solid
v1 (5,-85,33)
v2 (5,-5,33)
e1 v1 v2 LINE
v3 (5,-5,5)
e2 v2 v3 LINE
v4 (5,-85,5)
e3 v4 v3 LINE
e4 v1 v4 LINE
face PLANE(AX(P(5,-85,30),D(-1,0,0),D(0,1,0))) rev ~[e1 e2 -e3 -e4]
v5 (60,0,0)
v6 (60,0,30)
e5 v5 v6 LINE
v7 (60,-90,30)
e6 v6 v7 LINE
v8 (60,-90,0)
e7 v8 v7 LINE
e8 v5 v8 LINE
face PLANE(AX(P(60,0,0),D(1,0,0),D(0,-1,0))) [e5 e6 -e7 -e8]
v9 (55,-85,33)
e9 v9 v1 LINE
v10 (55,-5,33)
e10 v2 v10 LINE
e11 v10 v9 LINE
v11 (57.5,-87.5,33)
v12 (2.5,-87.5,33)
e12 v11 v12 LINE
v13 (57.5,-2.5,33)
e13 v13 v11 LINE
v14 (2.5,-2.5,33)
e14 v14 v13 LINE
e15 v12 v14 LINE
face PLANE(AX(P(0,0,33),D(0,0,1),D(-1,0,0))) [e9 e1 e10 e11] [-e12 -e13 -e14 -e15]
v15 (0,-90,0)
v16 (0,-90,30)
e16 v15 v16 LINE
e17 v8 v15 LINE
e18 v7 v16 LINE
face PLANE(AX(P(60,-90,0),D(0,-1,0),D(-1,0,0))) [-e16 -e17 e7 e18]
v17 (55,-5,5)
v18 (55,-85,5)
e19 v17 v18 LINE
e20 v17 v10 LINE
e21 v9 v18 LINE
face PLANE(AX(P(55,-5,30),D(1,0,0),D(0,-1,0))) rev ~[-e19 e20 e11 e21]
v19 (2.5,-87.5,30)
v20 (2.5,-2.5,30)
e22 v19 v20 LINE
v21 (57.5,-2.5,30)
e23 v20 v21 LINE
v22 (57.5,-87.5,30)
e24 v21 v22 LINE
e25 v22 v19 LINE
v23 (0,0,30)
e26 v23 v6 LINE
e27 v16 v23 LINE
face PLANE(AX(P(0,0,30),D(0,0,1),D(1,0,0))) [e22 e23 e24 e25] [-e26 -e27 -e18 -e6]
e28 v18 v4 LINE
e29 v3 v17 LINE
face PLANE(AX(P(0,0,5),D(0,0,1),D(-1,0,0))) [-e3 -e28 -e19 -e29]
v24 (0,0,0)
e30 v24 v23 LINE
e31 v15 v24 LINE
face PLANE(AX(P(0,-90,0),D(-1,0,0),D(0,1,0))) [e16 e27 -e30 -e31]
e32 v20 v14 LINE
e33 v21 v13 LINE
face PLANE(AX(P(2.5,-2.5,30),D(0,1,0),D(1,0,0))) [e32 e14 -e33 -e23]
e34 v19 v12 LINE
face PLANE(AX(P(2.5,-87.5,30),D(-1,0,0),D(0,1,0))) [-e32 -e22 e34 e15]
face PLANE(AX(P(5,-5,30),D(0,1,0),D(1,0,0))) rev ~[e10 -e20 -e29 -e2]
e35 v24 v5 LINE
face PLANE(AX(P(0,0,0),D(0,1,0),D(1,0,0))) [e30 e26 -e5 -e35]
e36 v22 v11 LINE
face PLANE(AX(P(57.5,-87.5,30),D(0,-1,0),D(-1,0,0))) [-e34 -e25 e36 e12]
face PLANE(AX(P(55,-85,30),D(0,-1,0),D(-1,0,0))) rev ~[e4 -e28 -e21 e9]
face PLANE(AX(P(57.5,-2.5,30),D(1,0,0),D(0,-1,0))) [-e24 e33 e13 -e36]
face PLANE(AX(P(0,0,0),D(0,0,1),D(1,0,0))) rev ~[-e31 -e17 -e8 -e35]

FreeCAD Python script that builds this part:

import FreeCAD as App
import Part
import Sketcher

V = App.Vector


def add_polygon(sketch, points):
    """Adds a closed chain of lines whose ends are joined by coincident constraints."""
    first, n = sketch.GeometryCount, len(points)
    for a, b in zip(points, points[1:] + points[:1]):
        sketch.addGeometry(Part.LineSegment(App.Vector(*a, 0), App.Vector(*b, 0)), False)
    for i in range(n):
        sketch.addConstraint(Sketcher.Constraint("Coincident", first + i, 2, first + (i + 1) % n, 1))

doc = App.newDocument("Part")
body = doc.addObject("PartDesign::Body", "Body")

sketch1 = body.newObject("Sketcher::SketchObject", "Sketch")
sketch1.AttachmentSupport = (doc.getObject("XY_Plane"), [""])
sketch1.MapMode = "FlatFace"
add_polygon(sketch1, [(60, 0), (0, 0), (0, -90), (60, -90)])
sketch1.addConstraint(Sketcher.Constraint("Horizontal", 0))
sketch1.addConstraint(Sketcher.Constraint("Vertical", 1))
sketch1.addConstraint(Sketcher.Constraint("Horizontal", 2))
sketch1.addConstraint(Sketcher.Constraint("Vertical", 3))
sketch1.addConstraint(Sketcher.Constraint("Coincident", 0, 2, -1, 1))
sketch1.addConstraint(Sketcher.Constraint("DistanceX", 0, 2, 0, 1, 60.0))
sketch1.addConstraint(Sketcher.Constraint("DistanceY", 1, 2, 1, 1, 90.0))
pad1 = body.newObject("PartDesign::Pad", "Pad")
pad1.Profile = sketch1
pad1.Length = 30

sketch2 = body.newObject("Sketcher::SketchObject", "Sketch001")
sketch2.AttachmentSupport = (doc.getObject("XY_Plane"), [""])
sketch2.MapMode = "FlatFace"
sketch2.AttachmentOffset = App.Placement(V(0, 0, 30), App.Rotation())
add_polygon(sketch2, [(55, -5), (5, -5), (5, -85), (55, -85)])
sketch2.addConstraint(Sketcher.Constraint("Horizontal", 0))
sketch2.addConstraint(Sketcher.Constraint("Vertical", 1))
sketch2.addConstraint(Sketcher.Constraint("Horizontal", 2))
sketch2.addConstraint(Sketcher.Constraint("Vertical", 3))
sketch2.addConstraint(Sketcher.Constraint("DistanceX", 0, 2, 0, 1, 50.0))
sketch2.addConstraint(Sketcher.Constraint("DistanceY", 1, 2, 1, 1, 80.0))
sketch2.addConstraint(Sketcher.Constraint("DistanceX", -1, 1, 0, 2, 5.0))
sketch2.addConstraint(Sketcher.Constraint("DistanceY", 0, 2, -1, 1, 5.0))
pocket1 = body.newObject("PartDesign::Pocket", "Pocket")
pocket1.Profile = sketch2
pocket1.Length = 25

sketch3 = body.newObject("Sketcher::SketchObject", "Sketch002")
sketch3.AttachmentSupport = (doc.getObject("XY_Plane"), [""])
sketch3.MapMode = "FlatFace"
sketch3.AttachmentOffset = App.Placement(V(0, 0, 30), App.Rotation())
add_polygon(sketch3, [(58, -2), (2, -2), (2, -88), (58, -88)])
add_polygon(sketch3, [(5, -5), (55, -5), (55, -85), (5, -85)])
sketch3.addConstraint(Sketcher.Constraint("Horizontal", 0))
sketch3.addConstraint(Sketcher.Constraint("Vertical", 1))
sketch3.addConstraint(Sketcher.Constraint("Horizontal", 2))
sketch3.addConstraint(Sketcher.Constraint("Vertical", 3))
sketch3.addConstraint(Sketcher.Constraint("Horizontal", 4))
sketch3.addConstraint(Sketcher.Constraint("Vertical", 5))
sketch3.addConstraint(Sketcher.Constraint("Horizontal", 6))
sketch3.addConstraint(Sketcher.Constraint("Vertical", 7))
sketch3.addConstraint(Sketcher.Constraint("DistanceX", 0, 2, 0, 1, 55.0))
sketch3.addConstraint(Sketcher.Constraint("DistanceY", 1, 2, 1, 1, 85.0))
sketch3.addConstraint(Sketcher.Constraint("DistanceX", -1, 1, 4, 2, 55.0))
sketch3.addConstraint(Sketcher.Constraint("DistanceY", 5, 2, -1, 1, 85.0))
sketch3.addConstraint(Sketcher.Constraint("DistanceX", -1, 1, 0, 2, 2.5))
sketch3.addConstraint(Sketcher.Constraint("DistanceY", 0, 2, -1, 1, 2.5))
sketch3.addConstraint(Sketcher.Constraint("DistanceY", 4, 2, 3, 2, 2.5))
sketch3.addConstraint(Sketcher.Constraint("DistanceX", 1, 2, 6, 2, 2.5))
pad2 = body.newObject("PartDesign::Pad", "Pad001")
pad2.Profile = sketch3
pad2.Length = 3

doc.recompute()
